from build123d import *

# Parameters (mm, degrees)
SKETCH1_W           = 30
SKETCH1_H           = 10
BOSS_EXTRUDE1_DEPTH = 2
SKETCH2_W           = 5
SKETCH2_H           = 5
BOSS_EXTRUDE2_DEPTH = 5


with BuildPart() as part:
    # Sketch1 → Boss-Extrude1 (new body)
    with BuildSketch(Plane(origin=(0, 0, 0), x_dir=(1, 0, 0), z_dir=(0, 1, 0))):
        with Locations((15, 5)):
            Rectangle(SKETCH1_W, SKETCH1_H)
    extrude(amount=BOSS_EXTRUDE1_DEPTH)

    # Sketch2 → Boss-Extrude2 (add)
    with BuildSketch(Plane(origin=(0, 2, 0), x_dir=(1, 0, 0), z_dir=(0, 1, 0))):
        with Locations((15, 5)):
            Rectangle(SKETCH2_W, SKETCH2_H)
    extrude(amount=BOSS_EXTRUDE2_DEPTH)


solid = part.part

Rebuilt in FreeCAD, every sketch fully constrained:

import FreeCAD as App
import Part
import Sketcher
Q = App.Units.Quantity


def add_polygon(sketch, points):
    """Adds a closed chain of lines whose ends are joined by coincident constraints."""
    first, n = sketch.GeometryCount, len(points)
    for a, b in zip(points, points[1:] + points[:1]):
        sketch.addGeometry(Part.LineSegment(App.Vector(*a, 0), App.Vector(*b, 0)), False)
    for i in range(n):
        sketch.addConstraint(Sketcher.Constraint("Coincident", first + i, 2, first + (i + 1) % n, 1))

doc = App.newDocument("Part")
body = doc.addObject("PartDesign::Body", "Body")

# Sketch on XZ plane
sketch1 = doc.addObject("Sketcher::SketchObject", "Sketch")
body.addObject(sketch1)
sketch1.AttachmentSupport = (doc.XZ_Plane, [""])
sketch1.MapMode = "FlatFace"
add_polygon(sketch1, [(0, -10), (0, 0), (30, 0), (30, -10)])  # lines 0-3
sketch1.addConstraint([
    Sketcher.Constraint("Vertical", 0),
    Sketcher.Constraint("Horizontal", 1),
    Sketcher.Constraint("Vertical", 2),
    Sketcher.Constraint("Horizontal", 3),
    Sketcher.Constraint("Coincident", 0, 2, -1, 1),
    Sketcher.Constraint("DistanceX", 1, 1, 1, 2, Q("30 mm")),
    Sketcher.Constraint("DistanceY", 0, 1, 0, 2, Q("10 mm")),
])
pad1 = doc.addObject("PartDesign::Pad", "Pad")
body.addObject(pad1)
pad1.Profile = sketch1
pad1.Length = 2
pad1.Reversed = True

# Sketch on XZ plane
sketch2 = doc.addObject("Sketcher::SketchObject", "Sketch001")
body.addObject(sketch2)
sketch2.AttachmentSupport = (doc.XZ_Plane, [""])
sketch2.MapMode = "FlatFace"
sketch2.AttachmentOffset = App.Placement(App.Vector(0, 0, -2), App.Rotation())
add_polygon(sketch2, [(12, -8), (12, -2), (18, -2), (18, -8)])  # lines 0-3
sketch2.addConstraint([
    Sketcher.Constraint("Vertical", 0),
    Sketcher.Constraint("Horizontal", 1),
    Sketcher.Constraint("Vertical", 2),
    Sketcher.Constraint("Horizontal", 3),
    Sketcher.Constraint("Equal", 3, 0),
    Sketcher.Constraint("DistanceX", 1, 1, 1, 2, Q("5 mm")),
    Sketcher.Constraint("DistanceX", -1, 1, 0, 2, Q("12.5 mm")),
    Sketcher.Constraint("DistanceY", 0, 2, -1, 1, Q("2.5 mm")),
])
pad2 = doc.addObject("PartDesign::Pad", "Pad001")
body.addObject(pad2)
pad2.Profile = sketch2
pad2.Length = 5
pad2.Reversed = True

doc.recompute()
